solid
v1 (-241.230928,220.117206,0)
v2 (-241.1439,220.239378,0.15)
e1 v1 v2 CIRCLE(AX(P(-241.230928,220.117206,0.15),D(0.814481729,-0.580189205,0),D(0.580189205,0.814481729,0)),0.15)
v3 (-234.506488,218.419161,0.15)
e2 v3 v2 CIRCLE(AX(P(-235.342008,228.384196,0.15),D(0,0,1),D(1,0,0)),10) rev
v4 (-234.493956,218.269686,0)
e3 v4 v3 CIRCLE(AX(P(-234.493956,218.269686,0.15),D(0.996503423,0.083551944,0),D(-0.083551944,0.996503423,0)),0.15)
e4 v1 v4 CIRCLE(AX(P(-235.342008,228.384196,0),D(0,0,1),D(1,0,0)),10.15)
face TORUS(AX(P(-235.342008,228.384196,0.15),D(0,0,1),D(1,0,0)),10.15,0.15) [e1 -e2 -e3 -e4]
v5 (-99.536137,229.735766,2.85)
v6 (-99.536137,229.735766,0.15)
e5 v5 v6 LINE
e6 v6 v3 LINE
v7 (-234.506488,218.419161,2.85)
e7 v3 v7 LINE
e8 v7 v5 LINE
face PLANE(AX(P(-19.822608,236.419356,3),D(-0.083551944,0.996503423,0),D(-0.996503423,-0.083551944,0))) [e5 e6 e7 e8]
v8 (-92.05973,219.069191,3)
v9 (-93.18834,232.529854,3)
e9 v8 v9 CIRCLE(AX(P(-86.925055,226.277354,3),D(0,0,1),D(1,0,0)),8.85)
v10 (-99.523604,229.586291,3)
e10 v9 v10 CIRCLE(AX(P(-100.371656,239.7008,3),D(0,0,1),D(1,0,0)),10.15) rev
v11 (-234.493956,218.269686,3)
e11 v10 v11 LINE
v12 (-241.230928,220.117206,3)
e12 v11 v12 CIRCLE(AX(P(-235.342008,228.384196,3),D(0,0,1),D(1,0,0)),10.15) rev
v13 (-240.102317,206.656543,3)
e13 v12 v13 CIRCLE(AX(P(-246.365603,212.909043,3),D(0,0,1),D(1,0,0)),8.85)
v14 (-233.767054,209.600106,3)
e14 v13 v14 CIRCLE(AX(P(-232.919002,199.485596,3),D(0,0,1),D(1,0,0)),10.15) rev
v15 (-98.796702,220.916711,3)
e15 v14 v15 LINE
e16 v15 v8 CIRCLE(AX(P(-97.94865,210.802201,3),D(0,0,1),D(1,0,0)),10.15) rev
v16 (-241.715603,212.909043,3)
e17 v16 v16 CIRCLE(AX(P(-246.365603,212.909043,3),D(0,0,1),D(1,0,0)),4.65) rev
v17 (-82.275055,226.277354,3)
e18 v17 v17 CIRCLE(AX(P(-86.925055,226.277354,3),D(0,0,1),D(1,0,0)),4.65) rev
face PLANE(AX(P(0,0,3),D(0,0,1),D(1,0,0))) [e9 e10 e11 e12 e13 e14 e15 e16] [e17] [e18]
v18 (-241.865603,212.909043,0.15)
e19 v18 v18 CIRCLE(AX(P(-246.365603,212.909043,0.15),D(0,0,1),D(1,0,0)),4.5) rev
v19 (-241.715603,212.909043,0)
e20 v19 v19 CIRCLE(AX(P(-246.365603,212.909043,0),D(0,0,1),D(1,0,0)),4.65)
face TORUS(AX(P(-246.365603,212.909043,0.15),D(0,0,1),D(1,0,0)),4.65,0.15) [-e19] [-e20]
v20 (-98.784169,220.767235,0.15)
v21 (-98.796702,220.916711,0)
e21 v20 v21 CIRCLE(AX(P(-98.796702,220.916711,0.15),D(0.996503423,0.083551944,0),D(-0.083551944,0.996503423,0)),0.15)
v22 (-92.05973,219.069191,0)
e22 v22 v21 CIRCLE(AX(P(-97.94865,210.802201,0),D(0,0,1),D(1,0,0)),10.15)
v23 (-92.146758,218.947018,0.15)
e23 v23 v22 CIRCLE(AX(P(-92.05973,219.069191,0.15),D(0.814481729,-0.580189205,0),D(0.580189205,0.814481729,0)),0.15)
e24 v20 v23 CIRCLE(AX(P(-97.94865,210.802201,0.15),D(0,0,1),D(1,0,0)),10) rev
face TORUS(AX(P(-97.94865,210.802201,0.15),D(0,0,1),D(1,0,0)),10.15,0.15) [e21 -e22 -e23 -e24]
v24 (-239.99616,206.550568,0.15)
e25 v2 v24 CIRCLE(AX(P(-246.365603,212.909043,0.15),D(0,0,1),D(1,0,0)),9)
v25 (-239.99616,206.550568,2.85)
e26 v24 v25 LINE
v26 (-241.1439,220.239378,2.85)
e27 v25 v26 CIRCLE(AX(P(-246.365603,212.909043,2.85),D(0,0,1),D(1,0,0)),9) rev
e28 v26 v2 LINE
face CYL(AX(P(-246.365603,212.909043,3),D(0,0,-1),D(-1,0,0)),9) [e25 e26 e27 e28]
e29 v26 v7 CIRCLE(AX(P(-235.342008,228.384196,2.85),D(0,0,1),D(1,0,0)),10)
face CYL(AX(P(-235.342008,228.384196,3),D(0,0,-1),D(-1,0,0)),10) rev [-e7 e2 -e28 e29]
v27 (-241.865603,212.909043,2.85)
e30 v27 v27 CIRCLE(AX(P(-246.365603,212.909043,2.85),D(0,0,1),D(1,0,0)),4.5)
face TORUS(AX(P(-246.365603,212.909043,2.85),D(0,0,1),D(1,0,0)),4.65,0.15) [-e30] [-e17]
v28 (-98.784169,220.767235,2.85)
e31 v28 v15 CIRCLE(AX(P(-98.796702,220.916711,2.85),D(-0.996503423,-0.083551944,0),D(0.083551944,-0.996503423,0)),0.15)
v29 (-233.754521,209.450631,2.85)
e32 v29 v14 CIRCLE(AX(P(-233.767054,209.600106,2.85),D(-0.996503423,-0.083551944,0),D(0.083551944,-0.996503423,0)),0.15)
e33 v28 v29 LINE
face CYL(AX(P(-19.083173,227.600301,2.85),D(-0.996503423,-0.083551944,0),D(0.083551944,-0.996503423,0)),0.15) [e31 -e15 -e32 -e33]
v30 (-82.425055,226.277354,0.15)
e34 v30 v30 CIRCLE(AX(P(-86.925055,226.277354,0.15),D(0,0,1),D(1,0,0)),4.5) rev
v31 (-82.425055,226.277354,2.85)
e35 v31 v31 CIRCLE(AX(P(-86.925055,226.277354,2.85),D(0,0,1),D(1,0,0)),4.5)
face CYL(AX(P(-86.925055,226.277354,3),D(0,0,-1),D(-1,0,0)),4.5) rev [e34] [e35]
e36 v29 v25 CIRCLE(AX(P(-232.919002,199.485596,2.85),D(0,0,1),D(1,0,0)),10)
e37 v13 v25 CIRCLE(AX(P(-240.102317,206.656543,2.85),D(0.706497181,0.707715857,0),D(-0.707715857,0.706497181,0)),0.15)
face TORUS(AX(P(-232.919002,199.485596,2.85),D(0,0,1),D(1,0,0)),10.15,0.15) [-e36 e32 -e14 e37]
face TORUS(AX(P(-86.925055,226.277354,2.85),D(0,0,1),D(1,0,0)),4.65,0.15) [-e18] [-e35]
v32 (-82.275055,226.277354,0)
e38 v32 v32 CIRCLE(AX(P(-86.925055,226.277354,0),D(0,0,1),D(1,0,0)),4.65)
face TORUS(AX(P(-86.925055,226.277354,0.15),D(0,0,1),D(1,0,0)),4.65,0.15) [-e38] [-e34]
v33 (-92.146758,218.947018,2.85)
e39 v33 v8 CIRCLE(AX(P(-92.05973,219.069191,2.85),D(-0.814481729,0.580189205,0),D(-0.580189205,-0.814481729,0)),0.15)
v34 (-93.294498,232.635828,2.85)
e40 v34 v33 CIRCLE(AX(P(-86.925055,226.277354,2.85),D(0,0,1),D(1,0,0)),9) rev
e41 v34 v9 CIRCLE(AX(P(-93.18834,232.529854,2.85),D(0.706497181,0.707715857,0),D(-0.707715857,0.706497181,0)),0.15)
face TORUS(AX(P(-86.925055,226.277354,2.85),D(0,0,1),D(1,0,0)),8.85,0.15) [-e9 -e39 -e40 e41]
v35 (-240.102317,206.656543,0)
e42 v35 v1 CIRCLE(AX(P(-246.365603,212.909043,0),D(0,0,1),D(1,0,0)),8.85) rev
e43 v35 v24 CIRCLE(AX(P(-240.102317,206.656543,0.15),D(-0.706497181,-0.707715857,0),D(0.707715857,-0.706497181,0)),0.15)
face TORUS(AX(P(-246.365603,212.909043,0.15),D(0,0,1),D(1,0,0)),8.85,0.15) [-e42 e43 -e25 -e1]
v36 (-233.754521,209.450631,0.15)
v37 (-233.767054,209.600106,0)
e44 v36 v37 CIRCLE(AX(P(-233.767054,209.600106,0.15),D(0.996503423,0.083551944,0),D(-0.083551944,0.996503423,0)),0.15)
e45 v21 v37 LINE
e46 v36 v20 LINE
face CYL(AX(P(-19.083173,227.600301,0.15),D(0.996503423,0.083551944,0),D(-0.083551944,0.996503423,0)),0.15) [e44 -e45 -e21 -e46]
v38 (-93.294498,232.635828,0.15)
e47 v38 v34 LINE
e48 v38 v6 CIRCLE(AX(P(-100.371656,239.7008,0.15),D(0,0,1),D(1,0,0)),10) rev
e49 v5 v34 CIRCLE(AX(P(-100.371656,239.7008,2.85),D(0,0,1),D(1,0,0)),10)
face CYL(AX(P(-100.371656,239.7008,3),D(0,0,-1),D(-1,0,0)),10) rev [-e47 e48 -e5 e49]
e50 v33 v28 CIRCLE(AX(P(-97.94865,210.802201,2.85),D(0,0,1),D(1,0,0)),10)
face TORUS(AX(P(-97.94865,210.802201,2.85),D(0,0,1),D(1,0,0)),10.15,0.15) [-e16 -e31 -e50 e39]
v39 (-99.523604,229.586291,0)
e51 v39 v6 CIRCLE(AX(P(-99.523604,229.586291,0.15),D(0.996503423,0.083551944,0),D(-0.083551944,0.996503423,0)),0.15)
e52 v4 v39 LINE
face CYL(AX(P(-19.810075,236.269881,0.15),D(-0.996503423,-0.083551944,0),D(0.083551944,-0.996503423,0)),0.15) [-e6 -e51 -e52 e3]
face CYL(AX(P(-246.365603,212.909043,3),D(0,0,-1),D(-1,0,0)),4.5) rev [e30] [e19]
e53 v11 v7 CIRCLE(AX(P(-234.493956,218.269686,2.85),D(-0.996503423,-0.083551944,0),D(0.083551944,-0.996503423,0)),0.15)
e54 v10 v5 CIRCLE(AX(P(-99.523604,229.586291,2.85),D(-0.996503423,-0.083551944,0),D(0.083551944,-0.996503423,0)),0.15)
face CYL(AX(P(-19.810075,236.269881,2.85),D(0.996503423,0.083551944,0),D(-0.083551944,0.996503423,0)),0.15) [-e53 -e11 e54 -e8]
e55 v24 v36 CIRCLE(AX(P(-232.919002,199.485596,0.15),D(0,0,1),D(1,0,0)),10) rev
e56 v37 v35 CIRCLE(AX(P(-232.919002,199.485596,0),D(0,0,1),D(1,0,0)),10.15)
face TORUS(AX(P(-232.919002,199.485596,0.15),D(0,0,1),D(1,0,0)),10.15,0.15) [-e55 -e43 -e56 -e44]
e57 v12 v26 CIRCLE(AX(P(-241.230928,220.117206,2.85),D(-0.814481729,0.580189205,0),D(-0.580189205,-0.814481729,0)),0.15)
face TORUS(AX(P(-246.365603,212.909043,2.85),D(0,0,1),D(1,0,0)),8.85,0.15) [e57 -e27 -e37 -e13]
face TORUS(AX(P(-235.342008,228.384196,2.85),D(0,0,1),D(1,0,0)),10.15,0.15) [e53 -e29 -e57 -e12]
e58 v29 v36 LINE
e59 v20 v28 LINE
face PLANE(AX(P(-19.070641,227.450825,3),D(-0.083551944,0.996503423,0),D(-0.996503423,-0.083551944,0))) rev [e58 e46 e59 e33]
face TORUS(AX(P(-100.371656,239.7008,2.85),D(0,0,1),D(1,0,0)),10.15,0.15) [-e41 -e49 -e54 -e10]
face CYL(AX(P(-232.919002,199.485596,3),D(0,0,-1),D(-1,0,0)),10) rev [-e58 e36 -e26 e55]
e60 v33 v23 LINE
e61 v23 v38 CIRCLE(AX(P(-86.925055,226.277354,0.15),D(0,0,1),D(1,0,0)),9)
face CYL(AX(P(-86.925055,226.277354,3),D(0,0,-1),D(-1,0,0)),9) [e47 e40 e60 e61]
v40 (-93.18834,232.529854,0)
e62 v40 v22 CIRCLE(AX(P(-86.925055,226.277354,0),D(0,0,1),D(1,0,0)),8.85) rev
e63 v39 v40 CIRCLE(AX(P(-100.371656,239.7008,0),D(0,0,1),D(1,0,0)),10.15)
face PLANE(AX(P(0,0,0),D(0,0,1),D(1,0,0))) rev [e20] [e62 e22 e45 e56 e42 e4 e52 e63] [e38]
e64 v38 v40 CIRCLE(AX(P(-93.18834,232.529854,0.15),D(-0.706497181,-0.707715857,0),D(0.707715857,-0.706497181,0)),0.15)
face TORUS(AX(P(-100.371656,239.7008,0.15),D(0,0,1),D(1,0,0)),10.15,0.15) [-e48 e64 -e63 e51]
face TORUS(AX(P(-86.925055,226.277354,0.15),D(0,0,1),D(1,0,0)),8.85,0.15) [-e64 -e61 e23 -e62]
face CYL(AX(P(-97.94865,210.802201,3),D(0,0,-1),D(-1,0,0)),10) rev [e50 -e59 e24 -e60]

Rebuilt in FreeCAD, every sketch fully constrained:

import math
import FreeCAD as App
import Part
import Sketcher

V = App.Vector
Q = App.Units.Quantity


def edges_at(feature, points):
    """Names of the edges that pass closest to the given points."""
    edges = feature.Shape.Edges
    near = lambda p: min(range(len(edges)), key=lambda i: edges[i].distToShape(Part.Vertex(*p))[0])
    return sorted({f"Edge{near(p) + 1}" for p in points})

doc = App.newDocument("Part")
body = doc.addObject("PartDesign::Body", "Body")

sketch1 = body.newObject("Sketcher::SketchObject", "Sketch")
sketch1.AttachmentSupport = (doc.getObject("XY_Plane"), [""])
sketch1.MapMode = "FlatFace"
sketch1.addGeometry([
    Part.ArcOfCircle(Part.Circle(V(-246.4, 212.9, 0), V(0, 0, 1), 9), math.radians(35), math.radians(335)),
    Part.LineSegment(V(-238.2, 209.1, 0), V(-94.3, 221.1, 0)),
    Part.ArcOfCircle(Part.Circle(V(-86.9, 226.3, 0), V(0, 0, 1), 9), math.radians(-145), math.radians(155)),
    Part.LineSegment(V(-95.1, 230.1, 0), V(-239, 218, 0)),
    Part.Circle(V(-246.4, 212.9, 0), V(0, 0, 1), 4.5),
    Part.Circle(V(-86.9, 226.3, 0), V(0, 0, 1), 4.5),
], False)
sketch1.addConstraint([
    Sketcher.Constraint("Coincident", 0, 2, 1, 1),
    Sketcher.Constraint("Coincident", 1, 2, 2, 1),
    Sketcher.Constraint("Coincident", 2, 2, 3, 1),
    Sketcher.Constraint("Coincident", 3, 2, 0, 1),
    Sketcher.Constraint("Coincident", 4, 3, 0, 3),
    Sketcher.Constraint("Coincident", 5, 3, 2, 3),
    Sketcher.Constraint("Equal", 0, 2),
    Sketcher.Constraint("Equal", 4, 5),
    Sketcher.Constraint("Parallel", 1, 3),
    Sketcher.Constraint("Equal", 1, 3),
    Sketcher.Constraint("Diameter", 4, Q("9 mm")),
    Sketcher.Constraint("Radius", 0, Q("9 mm")),
    Sketcher.Constraint("DistanceY", -1, 1, 0, 2, Q("209.076 mm")),
    Sketcher.Constraint("DistanceX", 3, 2, -1, 1, Q("238.974611 mm")),
    Sketcher.Constraint("DistanceY", -1, 1, 3, 2, Q("218.044531 mm")),
    Sketcher.Constraint("DistanceY", 0, 3, 2, 3, Q("13.368311 mm")),
    Sketcher.Constraint("DistanceX", 0, 3, 0, 2, Q("8.142959 mm")),
    Sketcher.Constraint("DistanceX", 0, 2, 2, 3, Q("151.297588 mm")),
])
pad1 = body.newObject("PartDesign::Pad", "Pad")
pad1.Profile = sketch1
pad1.Length = 3
doc.recompute()

fillet = body.newObject("PartDesign::Fillet", "Fillet")
fillet.Base = (pad1, edges_at(pad1, [(-238.975, 218.045, 1.5)]))
fillet.Radius = 10
doc.recompute()

fillet2 = body.newObject("PartDesign::Fillet", "Fillet001")
fillet2.Base = (fillet, edges_at(fillet, [(-238.223, 209.076, 1.5)]))
fillet2.Radius = 10
doc.recompute()

fillet3 = body.newObject("PartDesign::Fillet", "Fillet002")
fillet3.Base = (fillet2, edges_at(fillet2, [(-95.068, 230.11, 1.5)]))
fillet3.Radius = 10
doc.recompute()

fillet4 = body.newObject("PartDesign::Fillet", "Fillet003")
fillet4.Base = (fillet3, edges_at(fillet3, [(-94.316, 221.142, 1.5)]))
fillet4.Radius = 10
doc.recompute()

fillet5 = body.newObject("PartDesign::Fillet", "Fillet004")
fillet5.Base = (fillet4, edges_at(fillet4, [
    (-91.425, 226.277, 0),
    (-255.334, 212.157, 0),
    (-255.334, 212.157, 3),
    (-167.021, 224.077, 0),
    (-167.021, 224.077, 3),
    (-237.987, 218.74, 0),
    (-237.987, 218.74, 3),
    (-250.866, 212.909, 3),
    (-166.269, 215.109, 0),
    (-166.269, 215.109, 3),
    (-237.133, 208.554, 0),
    (-237.133, 208.554, 3),
    (-96.158, 230.632, 0),
    (-96.158, 230.632, 3),
    (-77.957, 227.029, 0),
    (-77.957, 227.029, 3),
    (-95.304, 220.446, 0),
    (-95.304, 220.446, 3),
    (-91.425, 226.277, 3),
    (-250.866, 212.909, 0),
]))
fillet5.Radius = 0.15

doc.recompute()
